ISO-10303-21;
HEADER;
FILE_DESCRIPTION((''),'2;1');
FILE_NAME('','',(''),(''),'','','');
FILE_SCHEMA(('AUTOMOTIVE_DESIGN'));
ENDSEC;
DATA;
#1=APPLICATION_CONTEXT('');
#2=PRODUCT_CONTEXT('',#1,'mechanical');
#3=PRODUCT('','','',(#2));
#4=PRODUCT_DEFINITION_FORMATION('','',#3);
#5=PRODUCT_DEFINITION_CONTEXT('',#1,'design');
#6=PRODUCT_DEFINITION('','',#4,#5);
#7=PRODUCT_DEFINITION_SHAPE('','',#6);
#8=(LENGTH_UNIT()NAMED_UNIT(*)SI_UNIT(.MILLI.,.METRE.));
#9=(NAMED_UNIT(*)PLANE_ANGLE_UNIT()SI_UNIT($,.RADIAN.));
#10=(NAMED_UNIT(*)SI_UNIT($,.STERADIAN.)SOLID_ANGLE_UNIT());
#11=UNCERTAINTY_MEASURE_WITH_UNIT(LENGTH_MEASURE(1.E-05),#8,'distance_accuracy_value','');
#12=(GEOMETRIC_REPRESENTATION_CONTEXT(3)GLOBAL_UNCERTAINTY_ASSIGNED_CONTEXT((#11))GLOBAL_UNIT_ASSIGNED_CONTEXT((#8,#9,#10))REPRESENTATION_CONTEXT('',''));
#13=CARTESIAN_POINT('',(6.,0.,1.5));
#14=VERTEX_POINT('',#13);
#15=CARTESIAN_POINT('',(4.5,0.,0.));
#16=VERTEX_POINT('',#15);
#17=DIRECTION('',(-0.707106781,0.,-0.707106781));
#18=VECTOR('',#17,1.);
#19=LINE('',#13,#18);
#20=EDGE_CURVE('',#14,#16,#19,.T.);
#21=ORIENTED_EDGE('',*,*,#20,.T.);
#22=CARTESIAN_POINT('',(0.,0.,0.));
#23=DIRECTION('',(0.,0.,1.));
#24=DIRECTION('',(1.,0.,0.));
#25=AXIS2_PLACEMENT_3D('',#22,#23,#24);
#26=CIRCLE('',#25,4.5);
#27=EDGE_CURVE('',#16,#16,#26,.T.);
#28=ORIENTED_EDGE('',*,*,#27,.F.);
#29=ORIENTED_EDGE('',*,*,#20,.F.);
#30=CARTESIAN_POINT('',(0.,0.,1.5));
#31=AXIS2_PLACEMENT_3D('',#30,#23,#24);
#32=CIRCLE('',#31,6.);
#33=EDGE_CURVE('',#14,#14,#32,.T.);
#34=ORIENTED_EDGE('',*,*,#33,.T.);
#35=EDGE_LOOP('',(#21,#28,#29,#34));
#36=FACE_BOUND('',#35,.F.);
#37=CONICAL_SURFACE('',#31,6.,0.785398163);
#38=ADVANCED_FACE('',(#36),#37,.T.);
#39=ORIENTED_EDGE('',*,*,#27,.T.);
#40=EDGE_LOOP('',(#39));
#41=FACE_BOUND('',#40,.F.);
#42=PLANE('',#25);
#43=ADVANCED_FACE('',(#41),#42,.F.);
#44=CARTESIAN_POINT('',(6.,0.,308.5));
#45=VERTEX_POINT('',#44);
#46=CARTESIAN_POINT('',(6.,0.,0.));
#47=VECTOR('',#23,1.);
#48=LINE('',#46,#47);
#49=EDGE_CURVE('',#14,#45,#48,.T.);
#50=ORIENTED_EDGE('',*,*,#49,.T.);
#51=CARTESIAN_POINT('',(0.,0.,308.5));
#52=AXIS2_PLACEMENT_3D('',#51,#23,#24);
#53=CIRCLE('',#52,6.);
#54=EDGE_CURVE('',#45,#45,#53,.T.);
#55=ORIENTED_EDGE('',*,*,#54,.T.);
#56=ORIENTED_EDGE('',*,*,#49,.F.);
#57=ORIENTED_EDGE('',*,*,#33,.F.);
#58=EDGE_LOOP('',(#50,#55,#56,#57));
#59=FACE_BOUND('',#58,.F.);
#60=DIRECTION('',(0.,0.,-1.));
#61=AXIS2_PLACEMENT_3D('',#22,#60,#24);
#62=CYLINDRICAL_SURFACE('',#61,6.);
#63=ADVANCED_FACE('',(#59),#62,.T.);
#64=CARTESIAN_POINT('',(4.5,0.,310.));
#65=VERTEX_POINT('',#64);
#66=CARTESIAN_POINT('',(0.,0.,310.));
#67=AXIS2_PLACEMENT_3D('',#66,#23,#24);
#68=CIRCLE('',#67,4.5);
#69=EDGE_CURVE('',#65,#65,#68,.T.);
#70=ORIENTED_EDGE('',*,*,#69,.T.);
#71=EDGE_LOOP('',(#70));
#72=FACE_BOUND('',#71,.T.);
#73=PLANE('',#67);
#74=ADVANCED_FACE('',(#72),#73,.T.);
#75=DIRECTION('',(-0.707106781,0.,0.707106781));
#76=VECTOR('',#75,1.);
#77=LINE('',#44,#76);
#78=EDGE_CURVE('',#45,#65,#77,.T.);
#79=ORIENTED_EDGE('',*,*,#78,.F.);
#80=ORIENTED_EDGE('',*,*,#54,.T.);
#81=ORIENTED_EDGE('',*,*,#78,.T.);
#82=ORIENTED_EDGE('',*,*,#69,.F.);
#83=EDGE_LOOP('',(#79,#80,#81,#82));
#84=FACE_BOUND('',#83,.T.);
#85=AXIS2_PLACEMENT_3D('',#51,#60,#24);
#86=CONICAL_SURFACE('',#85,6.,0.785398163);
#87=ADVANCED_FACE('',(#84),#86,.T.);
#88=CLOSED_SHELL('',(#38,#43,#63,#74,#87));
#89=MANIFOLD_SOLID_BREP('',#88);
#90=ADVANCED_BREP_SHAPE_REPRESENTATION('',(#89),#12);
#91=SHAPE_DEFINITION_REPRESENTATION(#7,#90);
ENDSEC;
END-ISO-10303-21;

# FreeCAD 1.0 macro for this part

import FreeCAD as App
import Part
import Sketcher
from FreeCAD import Vector


def edges_at(feature, points):
    """Names of the edges that pass closest to the given points."""
    edges = feature.Shape.Edges
    near = lambda p: min(range(len(edges)), key=lambda i: edges[i].distToShape(Part.Vertex(*p))[0])
    return sorted({f"Edge{near(p) + 1}" for p in points})

doc = App.newDocument("Part")
body = doc.addObject("PartDesign::Body", "Body")

sketch1 = body.newObject("Sketcher::SketchObject", "Sketch")
sketch1.AttachmentSupport = (doc.getObject("XY_Plane"), [""])
sketch1.MapMode = "FlatFace"
sketch1.addGeometry(Part.Circle(Vector(0, 0, 0), Vector(0, 0, 1), 6), False)
sketch1.addConstraint([
    Sketcher.Constraint("Coincident", 0, 3, -1, 1),
    Sketcher.Constraint("Diameter", 0, 12.0),
])
pad1 = body.newObject("PartDesign::Pad", "Pad")
pad1.Profile = sketch1
pad1.Length = 310
doc.recompute()

chamfer = body.newObject("PartDesign::Chamfer", "Chamfer")
chamfer.Base = (pad1, edges_at(pad1, [(-6, 0, 0), (-6, 0, 310)]))
chamfer.Size = 1.5

doc.recompute()
